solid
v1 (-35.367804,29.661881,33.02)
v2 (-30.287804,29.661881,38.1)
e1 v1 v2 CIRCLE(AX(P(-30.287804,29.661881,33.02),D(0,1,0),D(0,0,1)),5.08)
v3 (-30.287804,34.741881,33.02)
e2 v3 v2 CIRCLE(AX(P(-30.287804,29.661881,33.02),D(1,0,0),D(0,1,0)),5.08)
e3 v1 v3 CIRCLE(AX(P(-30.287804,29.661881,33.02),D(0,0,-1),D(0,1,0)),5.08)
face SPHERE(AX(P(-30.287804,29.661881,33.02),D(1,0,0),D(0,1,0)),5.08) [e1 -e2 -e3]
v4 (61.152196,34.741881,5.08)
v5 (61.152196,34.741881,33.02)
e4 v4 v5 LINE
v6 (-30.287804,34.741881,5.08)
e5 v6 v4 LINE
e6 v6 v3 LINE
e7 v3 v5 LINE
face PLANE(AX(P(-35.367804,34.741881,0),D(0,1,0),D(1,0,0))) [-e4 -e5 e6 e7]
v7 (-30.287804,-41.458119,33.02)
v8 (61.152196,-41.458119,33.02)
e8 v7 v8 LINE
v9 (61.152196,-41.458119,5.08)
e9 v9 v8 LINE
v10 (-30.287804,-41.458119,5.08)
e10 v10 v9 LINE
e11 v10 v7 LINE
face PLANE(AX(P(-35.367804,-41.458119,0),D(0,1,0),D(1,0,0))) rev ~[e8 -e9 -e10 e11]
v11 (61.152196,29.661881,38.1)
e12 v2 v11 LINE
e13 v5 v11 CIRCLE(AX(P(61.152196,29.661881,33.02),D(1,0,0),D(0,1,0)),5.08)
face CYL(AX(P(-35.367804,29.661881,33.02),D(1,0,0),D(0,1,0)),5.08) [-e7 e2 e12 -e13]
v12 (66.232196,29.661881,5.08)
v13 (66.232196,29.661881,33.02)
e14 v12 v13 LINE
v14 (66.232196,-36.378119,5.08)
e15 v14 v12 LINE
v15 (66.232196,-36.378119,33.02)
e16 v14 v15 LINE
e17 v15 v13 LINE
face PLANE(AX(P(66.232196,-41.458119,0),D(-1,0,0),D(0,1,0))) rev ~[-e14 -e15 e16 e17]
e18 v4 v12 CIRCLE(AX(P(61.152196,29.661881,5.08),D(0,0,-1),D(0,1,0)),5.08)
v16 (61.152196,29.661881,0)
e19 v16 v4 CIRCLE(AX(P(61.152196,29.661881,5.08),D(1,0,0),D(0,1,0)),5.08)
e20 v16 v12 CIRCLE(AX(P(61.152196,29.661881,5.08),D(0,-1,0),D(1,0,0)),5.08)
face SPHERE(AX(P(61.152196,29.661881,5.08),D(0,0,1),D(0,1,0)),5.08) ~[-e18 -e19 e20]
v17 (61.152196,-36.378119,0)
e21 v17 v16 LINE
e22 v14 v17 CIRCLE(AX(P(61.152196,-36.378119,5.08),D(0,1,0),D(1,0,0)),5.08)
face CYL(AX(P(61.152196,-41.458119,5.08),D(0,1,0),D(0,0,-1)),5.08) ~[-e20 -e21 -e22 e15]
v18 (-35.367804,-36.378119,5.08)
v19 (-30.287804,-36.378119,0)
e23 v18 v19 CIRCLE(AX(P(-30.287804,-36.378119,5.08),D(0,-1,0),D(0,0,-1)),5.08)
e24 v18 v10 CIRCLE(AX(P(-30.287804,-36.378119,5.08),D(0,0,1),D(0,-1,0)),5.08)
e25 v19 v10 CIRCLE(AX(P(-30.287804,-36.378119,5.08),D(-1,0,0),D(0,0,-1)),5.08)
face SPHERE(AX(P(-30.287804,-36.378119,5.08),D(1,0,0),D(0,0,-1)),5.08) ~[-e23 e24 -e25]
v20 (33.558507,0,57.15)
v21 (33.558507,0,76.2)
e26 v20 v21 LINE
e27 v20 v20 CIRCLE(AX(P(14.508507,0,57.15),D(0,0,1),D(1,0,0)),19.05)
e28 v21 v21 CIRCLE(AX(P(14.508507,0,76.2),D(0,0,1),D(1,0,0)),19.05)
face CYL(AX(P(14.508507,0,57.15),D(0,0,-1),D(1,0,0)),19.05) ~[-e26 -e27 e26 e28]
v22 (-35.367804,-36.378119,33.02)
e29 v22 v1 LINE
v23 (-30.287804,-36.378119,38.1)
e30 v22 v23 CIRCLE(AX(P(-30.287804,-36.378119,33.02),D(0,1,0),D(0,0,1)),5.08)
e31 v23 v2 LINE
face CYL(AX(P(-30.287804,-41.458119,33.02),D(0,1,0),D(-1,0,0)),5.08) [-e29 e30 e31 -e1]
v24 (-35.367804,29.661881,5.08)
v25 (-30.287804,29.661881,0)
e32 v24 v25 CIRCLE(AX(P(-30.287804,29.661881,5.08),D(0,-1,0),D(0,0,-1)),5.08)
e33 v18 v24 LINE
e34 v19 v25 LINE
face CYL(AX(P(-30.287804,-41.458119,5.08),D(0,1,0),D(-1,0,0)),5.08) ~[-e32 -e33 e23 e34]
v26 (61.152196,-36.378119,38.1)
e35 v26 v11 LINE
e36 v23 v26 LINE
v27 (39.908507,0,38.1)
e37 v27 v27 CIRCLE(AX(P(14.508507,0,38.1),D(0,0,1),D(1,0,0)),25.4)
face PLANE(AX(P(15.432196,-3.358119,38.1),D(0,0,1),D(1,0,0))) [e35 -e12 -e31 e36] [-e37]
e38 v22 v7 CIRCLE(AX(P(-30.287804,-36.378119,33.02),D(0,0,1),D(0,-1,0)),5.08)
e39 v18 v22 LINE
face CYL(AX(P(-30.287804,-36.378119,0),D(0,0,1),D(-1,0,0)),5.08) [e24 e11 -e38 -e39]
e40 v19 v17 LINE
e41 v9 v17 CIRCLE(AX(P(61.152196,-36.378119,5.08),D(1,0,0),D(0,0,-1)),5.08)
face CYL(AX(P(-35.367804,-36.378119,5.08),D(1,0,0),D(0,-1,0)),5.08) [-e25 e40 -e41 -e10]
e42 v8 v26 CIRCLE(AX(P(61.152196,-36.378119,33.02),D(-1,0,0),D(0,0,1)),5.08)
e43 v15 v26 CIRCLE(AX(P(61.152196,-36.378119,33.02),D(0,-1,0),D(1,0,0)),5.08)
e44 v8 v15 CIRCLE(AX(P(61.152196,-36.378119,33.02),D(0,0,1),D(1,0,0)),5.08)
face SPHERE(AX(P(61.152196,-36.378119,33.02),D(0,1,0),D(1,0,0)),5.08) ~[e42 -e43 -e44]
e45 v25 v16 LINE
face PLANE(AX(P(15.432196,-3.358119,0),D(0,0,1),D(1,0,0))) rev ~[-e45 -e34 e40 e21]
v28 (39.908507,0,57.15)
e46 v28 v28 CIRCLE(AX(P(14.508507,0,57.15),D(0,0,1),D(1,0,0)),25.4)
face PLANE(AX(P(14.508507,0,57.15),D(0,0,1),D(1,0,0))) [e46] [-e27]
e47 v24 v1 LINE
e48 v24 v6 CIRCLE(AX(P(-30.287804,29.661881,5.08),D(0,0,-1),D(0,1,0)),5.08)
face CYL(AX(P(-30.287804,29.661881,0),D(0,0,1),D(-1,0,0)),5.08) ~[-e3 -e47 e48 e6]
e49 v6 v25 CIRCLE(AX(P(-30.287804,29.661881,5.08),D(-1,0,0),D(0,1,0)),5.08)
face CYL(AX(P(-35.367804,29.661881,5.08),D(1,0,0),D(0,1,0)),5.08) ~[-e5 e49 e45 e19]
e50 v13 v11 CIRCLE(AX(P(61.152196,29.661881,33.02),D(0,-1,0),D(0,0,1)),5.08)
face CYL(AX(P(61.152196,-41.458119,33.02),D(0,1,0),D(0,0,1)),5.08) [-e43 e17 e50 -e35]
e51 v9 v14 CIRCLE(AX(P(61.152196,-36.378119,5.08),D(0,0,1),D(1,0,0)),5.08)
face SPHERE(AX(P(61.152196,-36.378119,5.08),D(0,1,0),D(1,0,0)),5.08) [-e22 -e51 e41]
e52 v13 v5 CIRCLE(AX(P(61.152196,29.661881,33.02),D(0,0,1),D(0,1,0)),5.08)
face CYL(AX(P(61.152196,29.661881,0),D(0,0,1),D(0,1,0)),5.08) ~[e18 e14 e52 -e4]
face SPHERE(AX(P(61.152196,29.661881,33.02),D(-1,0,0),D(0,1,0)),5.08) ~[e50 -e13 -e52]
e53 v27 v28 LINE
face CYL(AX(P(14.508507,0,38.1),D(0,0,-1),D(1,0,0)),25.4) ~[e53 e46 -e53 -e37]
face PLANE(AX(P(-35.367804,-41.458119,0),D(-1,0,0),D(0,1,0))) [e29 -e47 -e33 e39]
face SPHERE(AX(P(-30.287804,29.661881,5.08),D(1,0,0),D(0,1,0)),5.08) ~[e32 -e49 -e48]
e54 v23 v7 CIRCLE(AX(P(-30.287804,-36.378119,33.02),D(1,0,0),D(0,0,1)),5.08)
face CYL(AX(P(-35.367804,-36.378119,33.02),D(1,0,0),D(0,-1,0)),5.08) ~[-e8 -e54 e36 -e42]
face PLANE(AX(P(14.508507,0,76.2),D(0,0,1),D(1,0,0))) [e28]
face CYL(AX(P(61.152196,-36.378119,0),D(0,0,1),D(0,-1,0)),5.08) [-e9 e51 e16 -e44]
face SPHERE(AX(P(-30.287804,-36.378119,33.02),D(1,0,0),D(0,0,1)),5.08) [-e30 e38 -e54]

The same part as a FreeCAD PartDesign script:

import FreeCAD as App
import Part
import Sketcher
Q = App.Units.Quantity


def edges_at(feature, points):
    """Names of the edges that pass closest to the given points."""
    edges = feature.Shape.Edges
    near = lambda p: min(range(len(edges)), key=lambda i: edges[i].distToShape(Part.Vertex(*p))[0])
    return sorted({f"Edge{near(p) + 1}" for p in points})


def add_polygon(sketch, points):
    """Adds a closed chain of lines whose ends are joined by coincident constraints."""
    first, n = sketch.GeometryCount, len(points)
    for a, b in zip(points, points[1:] + points[:1]):
        sketch.addGeometry(Part.LineSegment(App.Vector(*a, 0), App.Vector(*b, 0)), False)
    for i in range(n):
        sketch.addConstraint(Sketcher.Constraint("Coincident", first + i, 2, first + (i + 1) % n, 1))

doc = App.newDocument("Part")
body = doc.addObject("PartDesign::Body", "Body")

sketch1 = body.newObject("Sketcher::SketchObject", "Sketch")
sketch1.AttachmentSupport = (doc.getObject("XY_Plane"), [""])
sketch1.MapMode = "FlatFace"
add_polygon(sketch1, [(-35, 35), (-35, -41), (66, -41), (66, 35)])
sketch1.addConstraint(Sketcher.Constraint("Vertical", 0))
sketch1.addConstraint(Sketcher.Constraint("Horizontal", 1))
sketch1.addConstraint(Sketcher.Constraint("Vertical", 2))
sketch1.addConstraint(Sketcher.Constraint("Horizontal", 3))
sketch1.addConstraint(Sketcher.Constraint("DistanceX", 1, 1, 1, 2, Q("4 in")))
sketch1.addConstraint(Sketcher.Constraint("DistanceY", 0, 2, 0, 1, Q("3 in")))
sketch1.addConstraint(Sketcher.Constraint("DistanceY", 0, 2, -1, 1, 41.458119))
sketch1.addConstraint(Sketcher.Constraint("DistanceX", 0, 2, -1, 1, 35.367804))
pad1 = body.newObject("PartDesign::Pad", "Pad")
pad1.Profile = sketch1
pad1.Length = Q("1.5 in")

sketch2 = body.newObject("Sketcher::SketchObject", "Sketch001")
sketch2.AttachmentSupport = (doc.getObject("XY_Plane"), [""])
sketch2.MapMode = "FlatFace"
sketch2.AttachmentOffset = App.Placement(App.Vector(0, 0, 1.5 * 25.4), App.Rotation())
sketch2.addGeometry(Part.Circle(App.Vector(15, 0, 0), App.Vector(0, 0, 1), 25), False)
sketch2.addConstraint(Sketcher.Constraint("PointOnObject", 0, 3, -1))
sketch2.addConstraint(Sketcher.Constraint("Diameter", 0, Q("2 in")))
sketch2.addConstraint(Sketcher.Constraint("DistanceX", -1, 1, 0, 3, 14.508507))
pad2 = body.newObject("PartDesign::Pad", "Pad001")
pad2.Profile = sketch2
pad2.Length = Q("0.75 in")

sketch3 = body.newObject("Sketcher::SketchObject", "Sketch002")
sketch3.AttachmentSupport = (doc.getObject("XY_Plane"), [""])
sketch3.MapMode = "FlatFace"
sketch3.AttachmentOffset = App.Placement(App.Vector(0, 0, 2.25 * 25.4), App.Rotation())
sketch3.addGeometry(Part.Circle(App.Vector(15, 0, 0), App.Vector(0, 0, 1), 19), False)
sketch3.addConstraint(Sketcher.Constraint("PointOnObject", 0, 3, -1))
sketch3.addConstraint(Sketcher.Constraint("Diameter", 0, Q("1.5 in")))
sketch3.addConstraint(Sketcher.Constraint("DistanceX", -1, 1, 0, 3, 14.508507))
pad3 = body.newObject("PartDesign::Pad", "Pad002")
pad3.Profile = sketch3
pad3.Length = Q("0.75 in")
doc.recompute()

fillet = body.newObject("PartDesign::Fillet", "Fillet")
fillet.Base = (pad3, edges_at(pad3, [
    (15.432, 34.742, 38.1),
    (66.232, 34.742, 19.05),
    (15.432, 34.742, 0),
    (-35.368, 34.742, 19.05),
    (66.232, -3.358, 38.1),
    (66.232, -3.358, 0),
    (66.232, -41.458, 19.05),
    (15.432, -41.458, 38.1),
    (-35.368, -3.358, 38.1),
    (15.432, -41.458, 0),
    (-35.368, -3.358, 0),
    (-35.368, -41.458, 19.05),
]))
fillet.Radius = Q("0.2 in")

doc.recompute()
